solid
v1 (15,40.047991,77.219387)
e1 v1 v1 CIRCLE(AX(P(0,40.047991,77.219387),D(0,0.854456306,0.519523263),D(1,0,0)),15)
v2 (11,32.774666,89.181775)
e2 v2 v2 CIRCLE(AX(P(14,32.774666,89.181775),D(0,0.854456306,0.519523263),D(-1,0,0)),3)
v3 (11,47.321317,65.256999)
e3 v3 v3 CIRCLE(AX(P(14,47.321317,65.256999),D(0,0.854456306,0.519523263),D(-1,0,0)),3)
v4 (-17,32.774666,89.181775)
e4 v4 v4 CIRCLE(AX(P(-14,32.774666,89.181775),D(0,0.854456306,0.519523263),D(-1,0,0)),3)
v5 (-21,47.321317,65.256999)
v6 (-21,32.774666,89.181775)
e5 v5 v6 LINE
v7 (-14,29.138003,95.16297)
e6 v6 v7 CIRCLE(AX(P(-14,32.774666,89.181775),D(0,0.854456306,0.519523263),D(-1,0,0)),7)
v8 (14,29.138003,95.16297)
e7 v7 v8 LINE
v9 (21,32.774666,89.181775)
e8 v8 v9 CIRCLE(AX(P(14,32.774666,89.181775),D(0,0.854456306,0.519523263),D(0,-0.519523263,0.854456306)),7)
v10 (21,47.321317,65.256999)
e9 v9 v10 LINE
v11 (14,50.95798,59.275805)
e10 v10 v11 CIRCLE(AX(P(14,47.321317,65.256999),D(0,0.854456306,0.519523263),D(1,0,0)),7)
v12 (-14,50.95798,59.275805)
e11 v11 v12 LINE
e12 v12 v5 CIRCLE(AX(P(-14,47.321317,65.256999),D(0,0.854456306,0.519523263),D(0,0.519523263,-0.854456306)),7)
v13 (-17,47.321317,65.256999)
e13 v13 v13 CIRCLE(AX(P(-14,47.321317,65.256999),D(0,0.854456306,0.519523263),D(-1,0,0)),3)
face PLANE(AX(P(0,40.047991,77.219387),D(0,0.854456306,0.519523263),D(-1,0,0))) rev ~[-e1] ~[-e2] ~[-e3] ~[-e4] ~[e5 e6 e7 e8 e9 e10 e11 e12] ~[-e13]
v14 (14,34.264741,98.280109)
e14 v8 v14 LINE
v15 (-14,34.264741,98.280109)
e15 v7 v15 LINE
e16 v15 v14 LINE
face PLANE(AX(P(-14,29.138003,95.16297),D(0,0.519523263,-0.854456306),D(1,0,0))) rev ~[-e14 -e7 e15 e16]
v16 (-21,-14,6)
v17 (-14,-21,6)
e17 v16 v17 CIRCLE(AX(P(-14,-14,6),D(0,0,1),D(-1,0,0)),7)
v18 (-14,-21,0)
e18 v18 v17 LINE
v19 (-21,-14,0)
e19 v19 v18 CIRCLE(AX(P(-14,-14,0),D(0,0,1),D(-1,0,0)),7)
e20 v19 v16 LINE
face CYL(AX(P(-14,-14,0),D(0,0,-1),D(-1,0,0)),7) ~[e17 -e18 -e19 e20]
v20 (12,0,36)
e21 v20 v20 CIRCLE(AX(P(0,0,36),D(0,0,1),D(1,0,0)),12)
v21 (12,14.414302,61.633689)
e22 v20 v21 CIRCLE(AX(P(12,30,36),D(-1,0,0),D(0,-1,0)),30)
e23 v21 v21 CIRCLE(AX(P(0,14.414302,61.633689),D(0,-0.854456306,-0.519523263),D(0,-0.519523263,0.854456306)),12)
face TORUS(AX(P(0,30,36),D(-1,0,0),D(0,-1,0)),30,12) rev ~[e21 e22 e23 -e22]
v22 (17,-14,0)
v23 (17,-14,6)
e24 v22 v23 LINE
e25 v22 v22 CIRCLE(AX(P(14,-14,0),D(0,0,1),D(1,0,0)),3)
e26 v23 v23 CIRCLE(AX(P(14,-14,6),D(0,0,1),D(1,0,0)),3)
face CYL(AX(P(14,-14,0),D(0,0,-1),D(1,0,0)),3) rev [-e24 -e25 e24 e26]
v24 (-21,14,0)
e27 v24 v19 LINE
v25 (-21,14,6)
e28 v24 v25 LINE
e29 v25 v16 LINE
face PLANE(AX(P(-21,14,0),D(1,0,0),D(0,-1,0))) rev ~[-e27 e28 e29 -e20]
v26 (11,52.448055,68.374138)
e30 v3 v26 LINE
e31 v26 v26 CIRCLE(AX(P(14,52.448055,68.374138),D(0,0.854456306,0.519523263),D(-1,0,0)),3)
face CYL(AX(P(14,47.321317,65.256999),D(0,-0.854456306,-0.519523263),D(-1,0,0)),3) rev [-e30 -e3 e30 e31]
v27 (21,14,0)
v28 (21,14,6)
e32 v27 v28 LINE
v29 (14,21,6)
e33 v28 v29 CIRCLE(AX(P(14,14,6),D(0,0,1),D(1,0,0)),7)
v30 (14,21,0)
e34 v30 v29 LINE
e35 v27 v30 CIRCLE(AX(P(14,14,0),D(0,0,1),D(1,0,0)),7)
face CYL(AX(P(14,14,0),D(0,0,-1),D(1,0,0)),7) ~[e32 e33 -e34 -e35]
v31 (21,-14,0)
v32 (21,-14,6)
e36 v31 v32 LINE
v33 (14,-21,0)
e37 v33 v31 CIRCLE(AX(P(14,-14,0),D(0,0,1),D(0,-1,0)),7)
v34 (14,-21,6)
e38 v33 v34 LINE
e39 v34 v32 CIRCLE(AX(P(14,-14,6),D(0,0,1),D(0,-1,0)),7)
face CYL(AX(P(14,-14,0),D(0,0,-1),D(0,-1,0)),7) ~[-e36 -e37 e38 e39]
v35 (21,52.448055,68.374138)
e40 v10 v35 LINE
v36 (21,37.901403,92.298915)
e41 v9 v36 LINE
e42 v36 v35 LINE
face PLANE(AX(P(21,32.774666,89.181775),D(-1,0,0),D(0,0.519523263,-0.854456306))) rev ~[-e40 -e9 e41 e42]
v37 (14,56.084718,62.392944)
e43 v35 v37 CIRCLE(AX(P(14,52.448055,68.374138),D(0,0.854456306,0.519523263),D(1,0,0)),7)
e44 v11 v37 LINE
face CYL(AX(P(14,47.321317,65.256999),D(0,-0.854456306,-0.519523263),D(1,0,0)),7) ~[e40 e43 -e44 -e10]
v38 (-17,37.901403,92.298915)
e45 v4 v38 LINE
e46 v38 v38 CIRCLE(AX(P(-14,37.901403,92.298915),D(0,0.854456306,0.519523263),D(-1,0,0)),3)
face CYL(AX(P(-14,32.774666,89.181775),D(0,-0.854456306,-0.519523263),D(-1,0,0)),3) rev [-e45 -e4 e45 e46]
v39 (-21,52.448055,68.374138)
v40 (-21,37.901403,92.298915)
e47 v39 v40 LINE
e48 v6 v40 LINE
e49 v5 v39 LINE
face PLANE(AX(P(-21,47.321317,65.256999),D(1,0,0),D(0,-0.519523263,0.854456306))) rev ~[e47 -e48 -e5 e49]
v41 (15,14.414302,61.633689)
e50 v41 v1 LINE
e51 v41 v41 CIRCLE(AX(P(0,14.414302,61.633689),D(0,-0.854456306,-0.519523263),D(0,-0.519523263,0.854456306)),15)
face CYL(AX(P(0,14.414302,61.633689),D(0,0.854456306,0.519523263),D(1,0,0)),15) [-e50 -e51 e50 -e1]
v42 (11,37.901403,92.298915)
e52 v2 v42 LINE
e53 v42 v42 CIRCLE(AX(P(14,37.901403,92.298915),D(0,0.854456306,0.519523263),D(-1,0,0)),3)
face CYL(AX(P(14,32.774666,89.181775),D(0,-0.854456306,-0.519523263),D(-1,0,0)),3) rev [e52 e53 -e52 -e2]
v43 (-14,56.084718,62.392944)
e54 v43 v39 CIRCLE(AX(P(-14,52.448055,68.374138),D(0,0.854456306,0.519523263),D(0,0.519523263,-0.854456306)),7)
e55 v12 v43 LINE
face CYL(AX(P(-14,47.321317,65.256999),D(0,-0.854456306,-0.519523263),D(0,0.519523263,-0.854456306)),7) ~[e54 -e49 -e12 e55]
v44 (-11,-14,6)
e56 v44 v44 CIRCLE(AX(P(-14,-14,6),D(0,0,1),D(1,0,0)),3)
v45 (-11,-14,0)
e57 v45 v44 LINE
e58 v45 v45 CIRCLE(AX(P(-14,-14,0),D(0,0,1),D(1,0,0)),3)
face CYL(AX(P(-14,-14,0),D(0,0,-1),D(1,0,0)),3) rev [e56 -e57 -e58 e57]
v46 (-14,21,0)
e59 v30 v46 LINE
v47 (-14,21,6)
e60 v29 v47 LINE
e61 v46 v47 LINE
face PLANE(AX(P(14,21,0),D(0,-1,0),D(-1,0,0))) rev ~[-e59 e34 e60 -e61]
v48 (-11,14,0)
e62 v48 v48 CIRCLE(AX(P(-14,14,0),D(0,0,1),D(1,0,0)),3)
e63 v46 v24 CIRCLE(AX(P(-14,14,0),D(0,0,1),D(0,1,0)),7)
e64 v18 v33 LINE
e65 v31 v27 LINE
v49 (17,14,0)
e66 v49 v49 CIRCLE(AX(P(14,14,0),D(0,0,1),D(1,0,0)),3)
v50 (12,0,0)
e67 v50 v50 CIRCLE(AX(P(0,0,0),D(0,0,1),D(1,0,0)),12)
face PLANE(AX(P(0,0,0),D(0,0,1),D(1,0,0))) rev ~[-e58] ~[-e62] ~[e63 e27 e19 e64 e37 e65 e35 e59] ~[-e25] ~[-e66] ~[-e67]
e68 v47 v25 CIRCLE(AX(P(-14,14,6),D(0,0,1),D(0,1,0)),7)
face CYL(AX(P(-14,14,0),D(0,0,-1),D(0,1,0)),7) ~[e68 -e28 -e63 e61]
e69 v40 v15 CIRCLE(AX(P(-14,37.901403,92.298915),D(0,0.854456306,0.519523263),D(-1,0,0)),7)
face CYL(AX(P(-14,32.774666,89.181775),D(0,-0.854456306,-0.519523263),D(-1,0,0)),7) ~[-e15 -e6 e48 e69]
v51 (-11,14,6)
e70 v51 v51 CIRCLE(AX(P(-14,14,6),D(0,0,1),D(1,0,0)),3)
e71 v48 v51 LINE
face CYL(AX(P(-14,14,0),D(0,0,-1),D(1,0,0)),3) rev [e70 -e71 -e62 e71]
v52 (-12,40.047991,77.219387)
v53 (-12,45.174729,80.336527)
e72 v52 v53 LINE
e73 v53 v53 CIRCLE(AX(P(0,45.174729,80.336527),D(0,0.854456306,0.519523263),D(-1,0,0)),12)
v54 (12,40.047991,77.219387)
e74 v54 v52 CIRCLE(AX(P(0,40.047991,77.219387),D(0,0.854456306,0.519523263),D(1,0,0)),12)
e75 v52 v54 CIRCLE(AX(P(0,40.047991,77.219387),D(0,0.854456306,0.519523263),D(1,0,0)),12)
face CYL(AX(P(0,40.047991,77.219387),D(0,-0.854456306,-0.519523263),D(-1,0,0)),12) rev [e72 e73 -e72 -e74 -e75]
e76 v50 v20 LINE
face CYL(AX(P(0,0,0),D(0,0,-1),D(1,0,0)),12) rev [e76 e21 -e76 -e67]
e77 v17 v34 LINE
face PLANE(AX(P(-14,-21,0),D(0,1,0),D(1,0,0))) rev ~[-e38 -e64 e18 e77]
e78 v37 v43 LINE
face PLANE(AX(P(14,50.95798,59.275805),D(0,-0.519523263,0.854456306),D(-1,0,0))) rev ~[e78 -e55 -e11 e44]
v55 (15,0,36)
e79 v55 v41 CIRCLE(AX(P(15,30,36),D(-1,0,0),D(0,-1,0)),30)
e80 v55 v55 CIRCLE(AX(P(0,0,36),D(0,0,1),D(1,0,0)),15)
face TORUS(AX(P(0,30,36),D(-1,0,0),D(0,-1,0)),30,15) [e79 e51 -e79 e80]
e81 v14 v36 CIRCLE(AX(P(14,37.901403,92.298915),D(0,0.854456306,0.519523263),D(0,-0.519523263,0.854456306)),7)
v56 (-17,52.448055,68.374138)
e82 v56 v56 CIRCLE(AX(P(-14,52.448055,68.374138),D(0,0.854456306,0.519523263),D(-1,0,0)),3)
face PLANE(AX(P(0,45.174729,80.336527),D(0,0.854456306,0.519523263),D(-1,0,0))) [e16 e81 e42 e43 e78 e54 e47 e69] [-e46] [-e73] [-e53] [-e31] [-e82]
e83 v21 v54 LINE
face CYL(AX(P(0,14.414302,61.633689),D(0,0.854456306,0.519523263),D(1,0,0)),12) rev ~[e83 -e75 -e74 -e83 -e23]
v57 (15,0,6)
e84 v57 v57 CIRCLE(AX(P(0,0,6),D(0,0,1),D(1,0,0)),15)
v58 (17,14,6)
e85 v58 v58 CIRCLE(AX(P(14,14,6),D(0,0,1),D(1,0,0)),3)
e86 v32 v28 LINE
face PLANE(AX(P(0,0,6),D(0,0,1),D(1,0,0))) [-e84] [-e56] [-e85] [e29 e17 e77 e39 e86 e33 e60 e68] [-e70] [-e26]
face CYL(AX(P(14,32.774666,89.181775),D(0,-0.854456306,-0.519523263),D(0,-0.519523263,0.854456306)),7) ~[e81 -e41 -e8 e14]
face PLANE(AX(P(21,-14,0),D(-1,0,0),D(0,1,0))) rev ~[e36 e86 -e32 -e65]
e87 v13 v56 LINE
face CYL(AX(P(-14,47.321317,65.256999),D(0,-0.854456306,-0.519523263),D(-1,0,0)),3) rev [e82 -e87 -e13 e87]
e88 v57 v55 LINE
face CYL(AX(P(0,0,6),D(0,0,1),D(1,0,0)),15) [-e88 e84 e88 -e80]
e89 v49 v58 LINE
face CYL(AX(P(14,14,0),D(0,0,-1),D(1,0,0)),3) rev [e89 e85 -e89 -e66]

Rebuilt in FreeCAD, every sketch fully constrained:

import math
import FreeCAD as App
import Part
import Sketcher

doc = App.newDocument("Part")
body = doc.addObject("PartDesign::Body", "Body")

# Sketch on XY plane
sketch1 = body.newObject("Sketcher::SketchObject", "Sketch")
sketch1.AttachmentSupport = (doc.getObject("XY_Plane"), [""])
sketch1.MapMode = "FlatFace"
sketch1.addGeometry([
    Part.LineSegment(App.Vector(-14, -21, 0), App.Vector(14, -21, 0)),  # 0
    Part.ArcOfCircle(Part.Circle(App.Vector(14, -14, 0), App.Vector(0, 0, 1), 7), math.radians(-90), math.radians(0)),  # 1
    Part.LineSegment(App.Vector(21, -14, 0), App.Vector(21, 14, 0)),  # 2
    Part.ArcOfCircle(Part.Circle(App.Vector(14, 14, 0), App.Vector(0, 0, 1), 7), math.radians(0), math.radians(90)),  # 3
    Part.LineSegment(App.Vector(14, 21, 0), App.Vector(-14, 21, 0)),  # 4
    Part.ArcOfCircle(Part.Circle(App.Vector(-14, 14, 0), App.Vector(0, 0, 1), 7), math.radians(90), math.radians(180)),  # 5
    Part.LineSegment(App.Vector(-21, 14, 0), App.Vector(-21, -14, 0)),  # 6
    Part.ArcOfCircle(Part.Circle(App.Vector(-14, -14, 0), App.Vector(0, 0, 1), 7), math.radians(180), math.radians(270)),  # 7
    Part.Circle(App.Vector(-14, -14, 0), App.Vector(0, 0, 1), 3),  # 8
    Part.Circle(App.Vector(14, -14, 0), App.Vector(0, 0, 1), 3),  # 9
    Part.Circle(App.Vector(-14, 14, 0), App.Vector(0, 0, 1), 3),  # 10
    Part.Circle(App.Vector(0, 0, 0), App.Vector(0, 0, 1), 12),  # 11
    Part.Circle(App.Vector(14, 14, 0), App.Vector(0, 0, 1), 3),  # 12
], False)
sketch1.addConstraint([
    Sketcher.Constraint("Tangent", 0, 2, 1, 1),
    Sketcher.Constraint("Tangent", 1, 2, 2, 1),
    Sketcher.Constraint("Tangent", 2, 2, 3, 1),
    Sketcher.Constraint("Tangent", 3, 2, 4, 1),
    Sketcher.Constraint("Tangent", 4, 2, 5, 1),
    Sketcher.Constraint("Tangent", 5, 2, 6, 1),
    Sketcher.Constraint("Tangent", 6, 2, 7, 1),
    Sketcher.Constraint("Tangent", 7, 2, 0, 1),
    Sketcher.Constraint("Horizontal", 0),
    Sketcher.Constraint("Vertical", 2),
    Sketcher.Constraint("Horizontal", 4),
    Sketcher.Constraint("Vertical", 6),
    Sketcher.Constraint("Coincident", 11, 3, -1, 1),
    Sketcher.Constraint("Coincident", 8, 3, 7, 3),
    Sketcher.Constraint("Coincident", 9, 3, 1, 3),
    Sketcher.Constraint("Coincident", 10, 3, 5, 3),
    Sketcher.Constraint("Coincident", 12, 3, 3, 3),
    Sketcher.Constraint("Equal", 1, 3),
    Sketcher.Constraint("Equal", 3, 5),
    Sketcher.Constraint("Equal", 5, 7),
    Sketcher.Constraint("Equal", 8, 9),
    Sketcher.Constraint("Equal", 9, 10),
    Sketcher.Constraint("Equal", 10, 12),
    Sketcher.Constraint("Symmetric", 1, 3, 5, 3, -1, 1),
    Sketcher.Constraint("Equal", 4, 2),
    Sketcher.Constraint("Diameter", 8, 6.0),
    Sketcher.Constraint("Diameter", 11, 24.0),
    Sketcher.Constraint("Radius", 1, 7.0),
    Sketcher.Constraint("DistanceX", 0, 1, 0, 2, 28.0),
])
pad1 = body.newObject("PartDesign::Pad", "Pad")
pad1.Profile = sketch1
pad1.Length = 6

# Sketch on XY plane
sketch2 = body.newObject("Sketcher::SketchObject", "Sketch001")
sketch2.AttachmentSupport = (doc.getObject("XY_Plane"), [""])
sketch2.MapMode = "FlatFace"
sketch2.AttachmentOffset = App.Placement(App.Vector(0, 0, 6), App.Rotation())
sketch2.addGeometry([
    Part.Circle(App.Vector(0, 0, 0), App.Vector(0, 0, 1), 15),
    Part.Circle(App.Vector(0, 0, 0), App.Vector(0, 0, 1), 12),
], False)
sketch2.addConstraint([
    Sketcher.Constraint("Coincident", 0, 3, -1, 1),
    Sketcher.Constraint("Coincident", 1, 3, -1, 1),
    Sketcher.Constraint("Diameter", 0, 30.0),
    Sketcher.Constraint("Diameter", 1, 24.0),
])

# Sketch on YZ plane
sketch3 = body.newObject("Sketcher::SketchObject", "Sketch002")
sketch3.AttachmentSupport = (doc.getObject("YZ_Plane"), [""])
sketch3.MapMode = "FlatFace"
sketch3.addGeometry([
    Part.LineSegment(App.Vector(0, 6, 0), App.Vector(0, 36, 0)),
    Part.ArcOfCircle(Part.Circle(App.Vector(30, 36, 0), App.Vector(0, 0, 1), 30), math.radians(121), math.radians(180)),
    Part.LineSegment(App.Vector(14, 62, 0), App.Vector(40, 77, 0)),
], False)
sketch3.addConstraint([
    Sketcher.Constraint("Tangent", 0, 2, 1, 2),
    Sketcher.Constraint("Tangent", 1, 1, 2, 1),
    Sketcher.Constraint("Vertical", 0),
    Sketcher.Constraint("PointOnObject", 0, 1, -2),
    Sketcher.Constraint("Radius", 1, 30.0),
    Sketcher.Constraint("DistanceY", 0, 1, 0, 2, 30.0),
    Sketcher.Constraint("Distance", 2, 30.0),
    Sketcher.Constraint("DistanceY", -1, 1, 1, 3, 36.0),
    Sketcher.Constraint("DistanceY", -1, 1, 1, 1, 61.633689),
])
doc.recompute()

additivepipe = body.newObject("PartDesign::AdditivePipe", "AdditivePipe")
additivepipe.Profile = sketch2
additivepipe.Spine = (sketch3, ["Edge1", "Edge2", "Edge3"])

# Sketch on an angled plane
sketch4 = body.newObject("Sketcher::SketchObject", "Sketch003")
sketch4.Placement = App.Placement(App.Vector(0, 63.517314, 38.619555), App.Rotation(App.Vector(-1, 0, 0), App.Vector(0, -0.519523263, 0.854456306), App.Vector(0, 0.854456306, 0.519523263), "ZXY"))
sketch4.addGeometry([
    Part.LineSegment(App.Vector(-14, 24.2, 0), App.Vector(14, 24.2, 0)),  # 0
    Part.ArcOfCircle(Part.Circle(App.Vector(14, 31.2, 0), App.Vector(0, 0, 1), 7), math.radians(-90), math.radians(0)),  # 1
    Part.LineSegment(App.Vector(21, 31.2, 0), App.Vector(21, 59.2, 0)),  # 2
    Part.ArcOfCircle(Part.Circle(App.Vector(14, 59.2, 0), App.Vector(0, 0, 1), 7), math.radians(0), math.radians(90)),  # 3
    Part.LineSegment(App.Vector(14, 66.2, 0), App.Vector(-14, 66.2, 0)),  # 4
    Part.ArcOfCircle(Part.Circle(App.Vector(-14, 59.2, 0), App.Vector(0, 0, 1), 7), math.radians(90), math.radians(180)),  # 5
    Part.LineSegment(App.Vector(-21, 59.2, 0), App.Vector(-21, 31.2, 0)),  # 6
    Part.ArcOfCircle(Part.Circle(App.Vector(-14, 31.2, 0), App.Vector(0, 0, 1), 7), math.radians(180), math.radians(270)),  # 7
    Part.Circle(App.Vector(-14, 31.2, 0), App.Vector(0, 0, 1), 3),  # 8
    Part.Circle(App.Vector(14, 31.2, 0), App.Vector(0, 0, 1), 3),  # 9
    Part.Circle(App.Vector(-14, 59.2, 0), App.Vector(0, 0, 1), 3),  # 10
    Part.Circle(App.Vector(0, 45.2, 0), App.Vector(0, 0, 1), 12),  # 11
    Part.Circle(App.Vector(14, 59.2, 0), App.Vector(0, 0, 1), 3),  # 12
], False)
sketch4.addConstraint([
    Sketcher.Constraint("Tangent", 0, 2, 1, 1),
    Sketcher.Constraint("Tangent", 1, 2, 2, 1),
    Sketcher.Constraint("Tangent", 2, 2, 3, 1),
    Sketcher.Constraint("Tangent", 3, 2, 4, 1),
    Sketcher.Constraint("Tangent", 4, 2, 5, 1),
    Sketcher.Constraint("Tangent", 5, 2, 6, 1),
    Sketcher.Constraint("Tangent", 6, 2, 7, 1),
    Sketcher.Constraint("Tangent", 7, 2, 0, 1),
    Sketcher.Constraint("Horizontal", 0),
    Sketcher.Constraint("Vertical", 2),
    Sketcher.Constraint("Horizontal", 4),
    Sketcher.Constraint("Vertical", 6),
    Sketcher.Constraint("Coincident", 8, 3, 7, 3),
    Sketcher.Constraint("Coincident", 9, 3, 1, 3),
    Sketcher.Constraint("Coincident", 10, 3, 5, 3),
    Sketcher.Constraint("Coincident", 12, 3, 3, 3),
    Sketcher.Constraint("Equal", 1, 3),
    Sketcher.Constraint("Equal", 3, 5),
    Sketcher.Constraint("Equal", 5, 7),
    Sketcher.Constraint("Equal", 8, 9),
    Sketcher.Constraint("Equal", 9, 10),
    Sketcher.Constraint("Equal", 10, 12),
    Sketcher.Constraint("PointOnObject", 11, 3, -2),
    Sketcher.Constraint("Equal", 4, 2),
    Sketcher.Constraint("Diameter", 8, 6.0),
    Sketcher.Constraint("Diameter", 11, 24.0),
    Sketcher.Constraint("Radius", 1, 7.0),
    Sketcher.Constraint("DistanceX", 0, 1, 0, 2, 28.0),
    Sketcher.Constraint("DistanceX", -1, 1, 1, 3, 14.0),
    Sketcher.Constraint("DistanceY", 11, 3, 3, 3, 14.0),
    Sketcher.Constraint("DistanceY", -1, 1, 1, 3, 31.174729),
])
pad2 = body.newObject("PartDesign::Pad", "Pad001")
pad2.Profile = sketch4
pad2.Length = 6

doc.recompute()
